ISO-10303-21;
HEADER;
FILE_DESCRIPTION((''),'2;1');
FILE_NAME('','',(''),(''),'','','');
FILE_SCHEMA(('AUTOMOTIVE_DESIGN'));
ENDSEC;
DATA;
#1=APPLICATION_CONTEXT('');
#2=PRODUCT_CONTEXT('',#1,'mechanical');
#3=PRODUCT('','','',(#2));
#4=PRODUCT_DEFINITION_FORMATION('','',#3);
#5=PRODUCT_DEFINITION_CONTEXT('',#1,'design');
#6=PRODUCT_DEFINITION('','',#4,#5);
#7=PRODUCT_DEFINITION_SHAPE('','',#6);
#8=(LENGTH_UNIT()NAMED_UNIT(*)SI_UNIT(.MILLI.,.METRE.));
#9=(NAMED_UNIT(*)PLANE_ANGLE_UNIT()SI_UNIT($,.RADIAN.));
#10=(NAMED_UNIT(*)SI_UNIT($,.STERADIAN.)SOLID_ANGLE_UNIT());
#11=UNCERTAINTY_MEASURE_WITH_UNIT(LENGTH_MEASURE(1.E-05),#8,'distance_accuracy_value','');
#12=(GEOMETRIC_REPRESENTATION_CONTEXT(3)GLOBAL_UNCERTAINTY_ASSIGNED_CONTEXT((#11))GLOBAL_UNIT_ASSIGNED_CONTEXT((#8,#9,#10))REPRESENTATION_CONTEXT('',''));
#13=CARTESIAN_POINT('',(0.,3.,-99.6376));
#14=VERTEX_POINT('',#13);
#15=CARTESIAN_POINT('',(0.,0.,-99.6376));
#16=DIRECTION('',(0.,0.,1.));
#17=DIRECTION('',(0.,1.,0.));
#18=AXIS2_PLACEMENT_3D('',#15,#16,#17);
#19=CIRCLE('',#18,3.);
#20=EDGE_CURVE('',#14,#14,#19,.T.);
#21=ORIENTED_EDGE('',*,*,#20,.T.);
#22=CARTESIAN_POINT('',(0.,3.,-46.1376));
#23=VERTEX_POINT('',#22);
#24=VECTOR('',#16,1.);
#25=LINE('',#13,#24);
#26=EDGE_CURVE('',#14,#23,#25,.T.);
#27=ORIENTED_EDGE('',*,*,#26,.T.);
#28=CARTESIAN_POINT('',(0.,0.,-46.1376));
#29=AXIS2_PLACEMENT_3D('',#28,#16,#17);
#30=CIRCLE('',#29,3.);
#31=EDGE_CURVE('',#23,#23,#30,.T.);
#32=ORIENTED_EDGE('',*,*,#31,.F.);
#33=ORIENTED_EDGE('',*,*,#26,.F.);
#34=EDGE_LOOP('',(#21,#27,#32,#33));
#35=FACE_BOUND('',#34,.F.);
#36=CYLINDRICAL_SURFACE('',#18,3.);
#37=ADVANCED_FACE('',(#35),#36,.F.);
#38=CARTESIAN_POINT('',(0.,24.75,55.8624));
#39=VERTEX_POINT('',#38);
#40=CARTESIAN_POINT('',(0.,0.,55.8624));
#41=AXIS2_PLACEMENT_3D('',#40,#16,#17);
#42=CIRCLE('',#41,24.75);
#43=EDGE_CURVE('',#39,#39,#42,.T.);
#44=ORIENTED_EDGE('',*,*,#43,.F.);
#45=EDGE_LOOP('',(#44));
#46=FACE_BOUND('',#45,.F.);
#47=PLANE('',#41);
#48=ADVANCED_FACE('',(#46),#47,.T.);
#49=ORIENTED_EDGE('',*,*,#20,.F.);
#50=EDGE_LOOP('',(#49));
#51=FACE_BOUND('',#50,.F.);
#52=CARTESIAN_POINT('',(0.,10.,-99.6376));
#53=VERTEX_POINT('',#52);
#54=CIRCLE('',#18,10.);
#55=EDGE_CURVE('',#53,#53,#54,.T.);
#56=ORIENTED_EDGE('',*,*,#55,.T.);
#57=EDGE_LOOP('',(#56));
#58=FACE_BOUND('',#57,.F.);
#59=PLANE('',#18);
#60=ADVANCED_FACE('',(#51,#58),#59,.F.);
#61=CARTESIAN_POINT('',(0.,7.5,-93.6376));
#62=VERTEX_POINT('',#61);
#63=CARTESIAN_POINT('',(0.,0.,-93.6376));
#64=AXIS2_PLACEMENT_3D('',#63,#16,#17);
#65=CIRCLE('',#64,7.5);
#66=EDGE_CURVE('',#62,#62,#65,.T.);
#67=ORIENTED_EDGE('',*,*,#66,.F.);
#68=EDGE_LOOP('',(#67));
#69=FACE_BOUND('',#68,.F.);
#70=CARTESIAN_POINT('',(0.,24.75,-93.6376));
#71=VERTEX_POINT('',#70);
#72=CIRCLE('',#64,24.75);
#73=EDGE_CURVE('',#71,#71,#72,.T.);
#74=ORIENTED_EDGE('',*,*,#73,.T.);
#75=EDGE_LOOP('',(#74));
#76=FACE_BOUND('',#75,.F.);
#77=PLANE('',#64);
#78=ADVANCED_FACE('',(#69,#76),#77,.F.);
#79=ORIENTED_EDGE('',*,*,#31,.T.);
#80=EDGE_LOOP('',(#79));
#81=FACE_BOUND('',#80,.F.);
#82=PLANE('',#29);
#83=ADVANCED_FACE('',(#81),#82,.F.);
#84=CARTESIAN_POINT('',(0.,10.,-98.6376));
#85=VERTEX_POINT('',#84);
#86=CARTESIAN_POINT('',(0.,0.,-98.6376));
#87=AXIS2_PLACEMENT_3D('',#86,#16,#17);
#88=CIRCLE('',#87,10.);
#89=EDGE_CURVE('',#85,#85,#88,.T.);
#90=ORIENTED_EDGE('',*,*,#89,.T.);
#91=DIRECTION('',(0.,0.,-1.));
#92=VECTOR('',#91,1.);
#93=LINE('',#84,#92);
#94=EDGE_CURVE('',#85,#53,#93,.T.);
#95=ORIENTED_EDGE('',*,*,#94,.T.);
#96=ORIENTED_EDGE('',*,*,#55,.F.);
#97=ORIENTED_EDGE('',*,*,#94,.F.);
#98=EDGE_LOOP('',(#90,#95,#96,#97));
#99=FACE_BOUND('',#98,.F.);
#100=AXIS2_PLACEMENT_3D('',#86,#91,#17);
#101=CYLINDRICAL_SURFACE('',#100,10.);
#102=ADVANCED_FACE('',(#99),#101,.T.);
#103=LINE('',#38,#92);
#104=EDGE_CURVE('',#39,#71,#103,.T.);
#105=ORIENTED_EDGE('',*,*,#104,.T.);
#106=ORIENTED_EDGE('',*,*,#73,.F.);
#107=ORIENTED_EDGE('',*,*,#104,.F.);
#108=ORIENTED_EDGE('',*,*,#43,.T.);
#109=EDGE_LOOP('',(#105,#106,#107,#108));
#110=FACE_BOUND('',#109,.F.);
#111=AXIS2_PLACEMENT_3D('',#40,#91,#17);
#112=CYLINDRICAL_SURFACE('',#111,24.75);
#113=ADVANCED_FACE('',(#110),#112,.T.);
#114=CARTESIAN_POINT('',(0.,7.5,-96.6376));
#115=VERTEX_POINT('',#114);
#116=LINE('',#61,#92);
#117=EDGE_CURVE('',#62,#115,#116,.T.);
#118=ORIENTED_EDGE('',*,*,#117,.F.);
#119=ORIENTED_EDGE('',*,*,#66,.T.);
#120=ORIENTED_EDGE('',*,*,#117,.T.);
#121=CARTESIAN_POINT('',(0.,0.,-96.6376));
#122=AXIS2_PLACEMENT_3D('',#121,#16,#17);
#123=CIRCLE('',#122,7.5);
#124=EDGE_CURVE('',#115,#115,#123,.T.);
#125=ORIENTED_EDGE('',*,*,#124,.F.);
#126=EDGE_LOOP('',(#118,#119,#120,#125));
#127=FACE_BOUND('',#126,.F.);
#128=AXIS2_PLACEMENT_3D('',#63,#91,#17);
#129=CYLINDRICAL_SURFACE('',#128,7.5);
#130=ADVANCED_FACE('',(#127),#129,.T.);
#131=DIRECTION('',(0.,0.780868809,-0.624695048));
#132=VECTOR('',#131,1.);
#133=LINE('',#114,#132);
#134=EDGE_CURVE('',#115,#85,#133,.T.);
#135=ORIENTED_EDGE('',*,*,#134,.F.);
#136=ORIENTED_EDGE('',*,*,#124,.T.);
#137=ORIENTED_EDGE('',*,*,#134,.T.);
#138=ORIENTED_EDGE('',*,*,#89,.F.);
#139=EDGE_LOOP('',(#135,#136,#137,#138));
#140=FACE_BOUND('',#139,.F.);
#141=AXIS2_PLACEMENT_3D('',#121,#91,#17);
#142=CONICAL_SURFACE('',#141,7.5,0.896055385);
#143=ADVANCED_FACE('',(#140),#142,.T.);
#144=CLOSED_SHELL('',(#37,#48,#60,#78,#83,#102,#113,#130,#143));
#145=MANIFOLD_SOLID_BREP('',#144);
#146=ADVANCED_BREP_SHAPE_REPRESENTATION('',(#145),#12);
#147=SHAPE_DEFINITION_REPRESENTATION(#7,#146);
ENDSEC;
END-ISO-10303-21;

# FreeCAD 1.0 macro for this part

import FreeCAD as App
import Part
import Sketcher
Q = App.Units.Quantity


def add_polygon(sketch, points):
    """Adds a closed chain of lines whose ends are joined by coincident constraints."""
    first, n = sketch.GeometryCount, len(points)
    for a, b in zip(points, points[1:] + points[:1]):
        sketch.addGeometry(Part.LineSegment(App.Vector(*a, 0), App.Vector(*b, 0)), False)
    for i in range(n):
        sketch.addConstraint(Sketcher.Constraint("Coincident", first + i, 2, first + (i + 1) % n, 1))

doc = App.newDocument("Part")
params = doc.addObject("Spreadsheet::Sheet", "Params")
for row, (alias, value) in enumerate([
    ("sketch1_width", "10 mm"),
    ("sketch1_height", "1 mm"),
    ("sketch1_height2", "155.5 mm"),
    ("sketch1_width2", "24.75 mm"),
    ("revolution_angle", "360 deg"),
    ("sketch2_diameter", "6 mm"),
    ("hole_diameter", "6 mm"),
    ("hole_depth", "53.5 mm"),
], start=1):
    params.set(f"A{row}", alias)
    params.set(f"B{row}", "=" + value)
    params.setAlias(f"B{row}", alias)

body = doc.addObject("PartDesign::Body", "Body")

# Sketch on YZ plane
sketch1 = body.newObject("Sketcher::SketchObject", "Sketch")
sketch1.AttachmentSupport = (doc.getObject("YZ_Plane"), [""])
sketch1.MapMode = "FlatFace"
add_polygon(sketch1, [(0, 55.9), (0, -99.6), (10, -99.6), (10, -98.6), (7.5, -96.6), (7.5, -93.6), (24.8, -93.6), (24.8, 55.9)])  # lines 0-7
sketch1.addConstraint([
    Sketcher.Constraint("Vertical", 0),
    Sketcher.Constraint("Horizontal", 1),
    Sketcher.Constraint("Vertical", 2),
    Sketcher.Constraint("Vertical", 4),
    Sketcher.Constraint("Horizontal", 5),
    Sketcher.Constraint("Vertical", 6),
    Sketcher.Constraint("Horizontal", 7),
    Sketcher.Constraint("PointOnObject", 0, 2, -2),
    Sketcher.Constraint("DistanceX", 1, 1, 1, 2, Q("10 mm")),
    Sketcher.Constraint("DistanceY", 2, 1, 2, 2, Q("1 mm")),
    Sketcher.Constraint("DistanceY", 0, 2, 0, 1, Q("155.5 mm")),
    Sketcher.Constraint("DistanceY", 2, 2, 3, 2, Q("2 mm")),
    Sketcher.Constraint("DistanceY", 1, 2, 4, 2, Q("6 mm")),
    Sketcher.Constraint("DistanceX", 7, 2, 7, 1, Q("24.75 mm")),
    Sketcher.Constraint("DistanceX", -1, 1, 3, 2, Q("7.5 mm")),
    Sketcher.Constraint("DistanceY", 0, 2, -1, 1, Q("99.6376 mm")),
])
sketch1.setExpression("Constraints[16]", "Params.sketch1_width")
sketch1.setExpression("Constraints[17]", "Params.sketch1_height")
sketch1.setExpression("Constraints[18]", "Params.sketch1_height2")
sketch1.setExpression("Constraints[21]", "Params.sketch1_width2")
revolution = body.newObject("PartDesign::Revolution", "Revolution")
revolution.Profile = sketch1
revolution.ReferenceAxis = (sketch1, ["V_Axis"])
revolution.setExpression("Angle", "Params.revolution_angle")

# Sketch on XY plane
sketch2 = body.newObject("Sketcher::SketchObject", "Sketch001")
sketch2.AttachmentSupport = (doc.getObject("XY_Plane"), [""])
sketch2.MapMode = "FlatFace"
sketch2.AttachmentOffset = App.Placement(App.Vector(0, 0, -99.6376), App.Rotation())
sketch2.addGeometry(Part.Circle(App.Vector(0, 0, 0), App.Vector(0, 0, 1), 3), False)
sketch2.addConstraint([
    Sketcher.Constraint("Coincident", 0, 3, -1, 1),
    Sketcher.Constraint("Diameter", 0, Q("6 mm")),
])
sketch2.setExpression("Constraints[1]", "Params.sketch2_diameter")
doc.recompute()
hole = body.newObject("PartDesign::Hole", "Hole")
hole.Profile = sketch2
hole.ThreadType = "None"
hole.setExpression("Diameter", "Params.hole_diameter")
hole.DepthType = "Dimension"
hole.setExpression("Depth", "Params.hole_depth")
hole.DrillPoint = "Flat"
hole.Reversed = True

doc.recompute()
